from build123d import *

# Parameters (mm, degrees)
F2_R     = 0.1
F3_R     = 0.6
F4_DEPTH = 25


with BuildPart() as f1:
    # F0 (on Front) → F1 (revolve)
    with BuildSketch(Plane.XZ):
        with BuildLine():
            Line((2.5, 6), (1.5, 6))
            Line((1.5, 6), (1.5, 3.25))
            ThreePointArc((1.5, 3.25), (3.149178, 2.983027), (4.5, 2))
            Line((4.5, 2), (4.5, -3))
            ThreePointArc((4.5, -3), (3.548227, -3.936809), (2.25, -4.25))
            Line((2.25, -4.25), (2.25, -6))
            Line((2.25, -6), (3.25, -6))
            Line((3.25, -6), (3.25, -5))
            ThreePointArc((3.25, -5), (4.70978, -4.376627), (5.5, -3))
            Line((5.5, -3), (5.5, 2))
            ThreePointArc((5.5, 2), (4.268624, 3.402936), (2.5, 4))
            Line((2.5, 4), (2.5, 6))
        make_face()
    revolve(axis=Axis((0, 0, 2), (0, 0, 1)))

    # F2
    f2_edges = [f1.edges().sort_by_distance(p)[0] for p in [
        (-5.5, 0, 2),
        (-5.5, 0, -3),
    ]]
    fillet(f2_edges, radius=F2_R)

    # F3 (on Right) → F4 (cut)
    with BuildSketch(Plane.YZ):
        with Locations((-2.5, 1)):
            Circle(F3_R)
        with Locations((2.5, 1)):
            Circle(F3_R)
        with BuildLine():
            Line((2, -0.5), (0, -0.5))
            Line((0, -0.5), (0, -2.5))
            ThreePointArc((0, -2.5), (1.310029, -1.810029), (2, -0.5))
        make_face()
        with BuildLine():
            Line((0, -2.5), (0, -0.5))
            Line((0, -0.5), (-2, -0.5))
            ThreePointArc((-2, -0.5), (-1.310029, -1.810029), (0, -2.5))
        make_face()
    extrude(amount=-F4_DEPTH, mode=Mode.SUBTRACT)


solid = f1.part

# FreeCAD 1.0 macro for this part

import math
import FreeCAD as App
import Part
import Sketcher

V = App.Vector
Q = App.Units.Quantity


def edges_at(feature, points):
    """Names of the edges that pass closest to the given points."""
    edges = feature.Shape.Edges
    near = lambda p: min(range(len(edges)), key=lambda i: edges[i].distToShape(Part.Vertex(*p))[0])
    return sorted({f"Edge{near(p) + 1}" for p in points})

doc = App.newDocument("Part")
body = doc.addObject("PartDesign::Body", "Body")

sketch1 = body.newObject("Sketcher::SketchObject", "Sketch")
sketch1.AttachmentSupport = (doc.getObject("XZ_Plane"), [""])
sketch1.MapMode = "FlatFace"
sketch1.addGeometry([
    Part.LineSegment(V(2.5, 6, 0), V(1.5, 6, 0)),
    Part.LineSegment(V(1.5, 6, 0), V(1.5, 3.2, 0)),
    Part.ArcOfCircle(Part.Circle(V(1.8, -0.3, 0), V(0, 0, 1), 3.6), math.radians(41), math.radians(94)),
    Part.LineSegment(V(4.5, 2, 0), V(4.5, -3, 0)),
    Part.ArcOfCircle(Part.Circle(V(2.3, -1.8, 0), V(0, 0, 1), 2.5), math.radians(-92), math.radians(-30)),
    Part.LineSegment(V(2.2, -4.2, 0), V(2.2, -6, 0)),
    Part.LineSegment(V(2.2, -6, 0), V(3.2, -6, 0)),
    Part.LineSegment(V(3.2, -6, 0), V(3.2, -5, 0)),
    Part.ArcOfCircle(Part.Circle(V(3, -2.5, 0), V(0, 0, 1), 2.5), math.radians(-85), math.radians(-11)),
    Part.LineSegment(V(5.5, -3, 0), V(5.5, 2, 0)),
    Part.ArcOfCircle(Part.Circle(V(2.3, 0.4, 0), V(0, 0, 1), 3.6), math.radians(26), math.radians(86)),
    Part.LineSegment(V(2.5, 4, 0), V(2.5, 6, 0)),
], False)
sketch1.addConstraint([
    Sketcher.Constraint("Coincident", 0, 2, 1, 1),
    Sketcher.Constraint("Coincident", 1, 2, 2, 2),
    Sketcher.Constraint("Coincident", 2, 1, 3, 1),
    Sketcher.Constraint("Coincident", 3, 2, 4, 2),
    Sketcher.Constraint("Coincident", 4, 1, 5, 1),
    Sketcher.Constraint("Coincident", 5, 2, 6, 1),
    Sketcher.Constraint("Coincident", 6, 2, 7, 1),
    Sketcher.Constraint("Coincident", 7, 2, 8, 1),
    Sketcher.Constraint("Coincident", 8, 2, 9, 1),
    Sketcher.Constraint("Coincident", 9, 2, 10, 1),
    Sketcher.Constraint("Coincident", 10, 2, 11, 1),
    Sketcher.Constraint("Coincident", 11, 2, 0, 1),
    Sketcher.Constraint("Horizontal", 0),
    Sketcher.Constraint("Vertical", 1),
    Sketcher.Constraint("Vertical", 3),
    Sketcher.Constraint("Vertical", 5),
    Sketcher.Constraint("Horizontal", 6),
    Sketcher.Constraint("Vertical", 7),
    Sketcher.Constraint("Vertical", 9),
    Sketcher.Constraint("Vertical", 11),
    Sketcher.Constraint("Equal", 4, 8),
    Sketcher.Constraint("Horizontal", 3, 2, 8, 2),
    Sketcher.Constraint("Horizontal", 2, 1, 9, 2),
    Sketcher.Constraint("Equal", 0, 6),
    Sketcher.Constraint("Equal", 6, 7),
    Sketcher.Constraint("Radius", 4, Q("2.499999 mm")),
    Sketcher.Constraint("DistanceX", 0, 2, 0, 1, Q("1 mm")),
    Sketcher.Constraint("DistanceY", 3, 2, 3, 1, Q("5 mm")),
    Sketcher.Constraint("DistanceY", 11, 1, 11, 2, Q("2 mm")),
    Sketcher.Constraint("DistanceY", -1, 1, 0, 2, Q("6 mm")),
    Sketcher.Constraint("DistanceY", -1, 1, 2, 1, Q("2 mm")),
    Sketcher.Constraint("DistanceY", 5, 2, -1, 1, Q("6 mm")),
    Sketcher.Constraint("DistanceX", 1, 2, 2, 1, Q("3 mm")),
    Sketcher.Constraint("DistanceX", 3, 2, 8, 2, Q("1 mm")),
    Sketcher.Constraint("DistanceY", 1, 2, 1, 1, Q("2.75 mm")),
    Sketcher.Constraint("DistanceY", 5, 2, 5, 1, Q("1.75 mm")),
    Sketcher.Constraint("DistanceX", -1, 1, 0, 2, Q("1.5 mm")),
    Sketcher.Constraint("DistanceX", -1, 1, 4, 1, Q("2.25 mm")),
    Sketcher.Constraint("Radius", 10, Q("3.597709 mm")),
    Sketcher.Constraint("Radius", 2, Q("3.598004 mm")),
])
revolution = body.newObject("PartDesign::Revolution", "Revolution")
revolution.Profile = sketch1
revolution.ReferenceAxis = (sketch1, ["V_Axis"])
revolution.Angle = 360
doc.recompute()

fillet = body.newObject("PartDesign::Fillet", "Fillet")
fillet.Base = (revolution, edges_at(revolution, [(-5.5, 0, 2), (-5.5, 0, -3)]))
fillet.Radius = 0.1

sketch2 = body.newObject("Sketcher::SketchObject", "Sketch001")
sketch2.AttachmentSupport = (doc.getObject("YZ_Plane"), [""])
sketch2.MapMode = "FlatFace"
sketch2.addGeometry([
    Part.Circle(V(-2.5, 1, 0), V(0, 0, 1), 0.6),
    Part.Circle(V(2.5, 1, 0), V(0, 0, 1), 0.6),
    Part.LineSegment(V(2, -0.5, 0), V(-2, -0.5, 0)),
    Part.ArcOfCircle(Part.Circle(V(0.5, 0, 0), V(0, 0, 1), 2.5), math.radians(-169), math.radians(-101)),
    Part.ArcOfCircle(Part.Circle(V(-0.5, 0, 0), V(0, 0, 1), 2.5), math.radians(-79), math.radians(-11)),
], False)
sketch2.addConstraint([
    Sketcher.Constraint("Coincident", 2, 2, 3, 1),
    Sketcher.Constraint("Coincident", 3, 2, 4, 1),
    Sketcher.Constraint("Coincident", 4, 2, 2, 1),
    Sketcher.Constraint("Horizontal", 2),
    Sketcher.Constraint("Equal", 0, 1),
    Sketcher.Constraint("Equal", 3, 4),
    Sketcher.Constraint("Symmetric", 0, 3, 1, 3, -2),
    Sketcher.Constraint("Symmetric", 3, 3, 4, 3, -2),
    Sketcher.Constraint("Diameter", 0, Q("1.2 mm")),
    Sketcher.Constraint("Radius", 3, Q("2.5 mm")),
    Sketcher.Constraint("DistanceX", 2, 2, 2, 1, Q("4 mm")),
    Sketcher.Constraint("DistanceY", -1, 1, 0, 3, Q("1 mm")),
    Sketcher.Constraint("DistanceX", 0, 3, 1, 3, Q("5 mm")),
    Sketcher.Constraint("DistanceY", 3, 2, 2, 2, Q("2 mm")),
    Sketcher.Constraint("DistanceY", 2, 2, -1, 1, Q("0.5 mm")),
])
pocket1 = body.newObject("PartDesign::Pocket", "Pocket")
pocket1.Profile = sketch2
pocket1.Length = 25

doc.recompute()
